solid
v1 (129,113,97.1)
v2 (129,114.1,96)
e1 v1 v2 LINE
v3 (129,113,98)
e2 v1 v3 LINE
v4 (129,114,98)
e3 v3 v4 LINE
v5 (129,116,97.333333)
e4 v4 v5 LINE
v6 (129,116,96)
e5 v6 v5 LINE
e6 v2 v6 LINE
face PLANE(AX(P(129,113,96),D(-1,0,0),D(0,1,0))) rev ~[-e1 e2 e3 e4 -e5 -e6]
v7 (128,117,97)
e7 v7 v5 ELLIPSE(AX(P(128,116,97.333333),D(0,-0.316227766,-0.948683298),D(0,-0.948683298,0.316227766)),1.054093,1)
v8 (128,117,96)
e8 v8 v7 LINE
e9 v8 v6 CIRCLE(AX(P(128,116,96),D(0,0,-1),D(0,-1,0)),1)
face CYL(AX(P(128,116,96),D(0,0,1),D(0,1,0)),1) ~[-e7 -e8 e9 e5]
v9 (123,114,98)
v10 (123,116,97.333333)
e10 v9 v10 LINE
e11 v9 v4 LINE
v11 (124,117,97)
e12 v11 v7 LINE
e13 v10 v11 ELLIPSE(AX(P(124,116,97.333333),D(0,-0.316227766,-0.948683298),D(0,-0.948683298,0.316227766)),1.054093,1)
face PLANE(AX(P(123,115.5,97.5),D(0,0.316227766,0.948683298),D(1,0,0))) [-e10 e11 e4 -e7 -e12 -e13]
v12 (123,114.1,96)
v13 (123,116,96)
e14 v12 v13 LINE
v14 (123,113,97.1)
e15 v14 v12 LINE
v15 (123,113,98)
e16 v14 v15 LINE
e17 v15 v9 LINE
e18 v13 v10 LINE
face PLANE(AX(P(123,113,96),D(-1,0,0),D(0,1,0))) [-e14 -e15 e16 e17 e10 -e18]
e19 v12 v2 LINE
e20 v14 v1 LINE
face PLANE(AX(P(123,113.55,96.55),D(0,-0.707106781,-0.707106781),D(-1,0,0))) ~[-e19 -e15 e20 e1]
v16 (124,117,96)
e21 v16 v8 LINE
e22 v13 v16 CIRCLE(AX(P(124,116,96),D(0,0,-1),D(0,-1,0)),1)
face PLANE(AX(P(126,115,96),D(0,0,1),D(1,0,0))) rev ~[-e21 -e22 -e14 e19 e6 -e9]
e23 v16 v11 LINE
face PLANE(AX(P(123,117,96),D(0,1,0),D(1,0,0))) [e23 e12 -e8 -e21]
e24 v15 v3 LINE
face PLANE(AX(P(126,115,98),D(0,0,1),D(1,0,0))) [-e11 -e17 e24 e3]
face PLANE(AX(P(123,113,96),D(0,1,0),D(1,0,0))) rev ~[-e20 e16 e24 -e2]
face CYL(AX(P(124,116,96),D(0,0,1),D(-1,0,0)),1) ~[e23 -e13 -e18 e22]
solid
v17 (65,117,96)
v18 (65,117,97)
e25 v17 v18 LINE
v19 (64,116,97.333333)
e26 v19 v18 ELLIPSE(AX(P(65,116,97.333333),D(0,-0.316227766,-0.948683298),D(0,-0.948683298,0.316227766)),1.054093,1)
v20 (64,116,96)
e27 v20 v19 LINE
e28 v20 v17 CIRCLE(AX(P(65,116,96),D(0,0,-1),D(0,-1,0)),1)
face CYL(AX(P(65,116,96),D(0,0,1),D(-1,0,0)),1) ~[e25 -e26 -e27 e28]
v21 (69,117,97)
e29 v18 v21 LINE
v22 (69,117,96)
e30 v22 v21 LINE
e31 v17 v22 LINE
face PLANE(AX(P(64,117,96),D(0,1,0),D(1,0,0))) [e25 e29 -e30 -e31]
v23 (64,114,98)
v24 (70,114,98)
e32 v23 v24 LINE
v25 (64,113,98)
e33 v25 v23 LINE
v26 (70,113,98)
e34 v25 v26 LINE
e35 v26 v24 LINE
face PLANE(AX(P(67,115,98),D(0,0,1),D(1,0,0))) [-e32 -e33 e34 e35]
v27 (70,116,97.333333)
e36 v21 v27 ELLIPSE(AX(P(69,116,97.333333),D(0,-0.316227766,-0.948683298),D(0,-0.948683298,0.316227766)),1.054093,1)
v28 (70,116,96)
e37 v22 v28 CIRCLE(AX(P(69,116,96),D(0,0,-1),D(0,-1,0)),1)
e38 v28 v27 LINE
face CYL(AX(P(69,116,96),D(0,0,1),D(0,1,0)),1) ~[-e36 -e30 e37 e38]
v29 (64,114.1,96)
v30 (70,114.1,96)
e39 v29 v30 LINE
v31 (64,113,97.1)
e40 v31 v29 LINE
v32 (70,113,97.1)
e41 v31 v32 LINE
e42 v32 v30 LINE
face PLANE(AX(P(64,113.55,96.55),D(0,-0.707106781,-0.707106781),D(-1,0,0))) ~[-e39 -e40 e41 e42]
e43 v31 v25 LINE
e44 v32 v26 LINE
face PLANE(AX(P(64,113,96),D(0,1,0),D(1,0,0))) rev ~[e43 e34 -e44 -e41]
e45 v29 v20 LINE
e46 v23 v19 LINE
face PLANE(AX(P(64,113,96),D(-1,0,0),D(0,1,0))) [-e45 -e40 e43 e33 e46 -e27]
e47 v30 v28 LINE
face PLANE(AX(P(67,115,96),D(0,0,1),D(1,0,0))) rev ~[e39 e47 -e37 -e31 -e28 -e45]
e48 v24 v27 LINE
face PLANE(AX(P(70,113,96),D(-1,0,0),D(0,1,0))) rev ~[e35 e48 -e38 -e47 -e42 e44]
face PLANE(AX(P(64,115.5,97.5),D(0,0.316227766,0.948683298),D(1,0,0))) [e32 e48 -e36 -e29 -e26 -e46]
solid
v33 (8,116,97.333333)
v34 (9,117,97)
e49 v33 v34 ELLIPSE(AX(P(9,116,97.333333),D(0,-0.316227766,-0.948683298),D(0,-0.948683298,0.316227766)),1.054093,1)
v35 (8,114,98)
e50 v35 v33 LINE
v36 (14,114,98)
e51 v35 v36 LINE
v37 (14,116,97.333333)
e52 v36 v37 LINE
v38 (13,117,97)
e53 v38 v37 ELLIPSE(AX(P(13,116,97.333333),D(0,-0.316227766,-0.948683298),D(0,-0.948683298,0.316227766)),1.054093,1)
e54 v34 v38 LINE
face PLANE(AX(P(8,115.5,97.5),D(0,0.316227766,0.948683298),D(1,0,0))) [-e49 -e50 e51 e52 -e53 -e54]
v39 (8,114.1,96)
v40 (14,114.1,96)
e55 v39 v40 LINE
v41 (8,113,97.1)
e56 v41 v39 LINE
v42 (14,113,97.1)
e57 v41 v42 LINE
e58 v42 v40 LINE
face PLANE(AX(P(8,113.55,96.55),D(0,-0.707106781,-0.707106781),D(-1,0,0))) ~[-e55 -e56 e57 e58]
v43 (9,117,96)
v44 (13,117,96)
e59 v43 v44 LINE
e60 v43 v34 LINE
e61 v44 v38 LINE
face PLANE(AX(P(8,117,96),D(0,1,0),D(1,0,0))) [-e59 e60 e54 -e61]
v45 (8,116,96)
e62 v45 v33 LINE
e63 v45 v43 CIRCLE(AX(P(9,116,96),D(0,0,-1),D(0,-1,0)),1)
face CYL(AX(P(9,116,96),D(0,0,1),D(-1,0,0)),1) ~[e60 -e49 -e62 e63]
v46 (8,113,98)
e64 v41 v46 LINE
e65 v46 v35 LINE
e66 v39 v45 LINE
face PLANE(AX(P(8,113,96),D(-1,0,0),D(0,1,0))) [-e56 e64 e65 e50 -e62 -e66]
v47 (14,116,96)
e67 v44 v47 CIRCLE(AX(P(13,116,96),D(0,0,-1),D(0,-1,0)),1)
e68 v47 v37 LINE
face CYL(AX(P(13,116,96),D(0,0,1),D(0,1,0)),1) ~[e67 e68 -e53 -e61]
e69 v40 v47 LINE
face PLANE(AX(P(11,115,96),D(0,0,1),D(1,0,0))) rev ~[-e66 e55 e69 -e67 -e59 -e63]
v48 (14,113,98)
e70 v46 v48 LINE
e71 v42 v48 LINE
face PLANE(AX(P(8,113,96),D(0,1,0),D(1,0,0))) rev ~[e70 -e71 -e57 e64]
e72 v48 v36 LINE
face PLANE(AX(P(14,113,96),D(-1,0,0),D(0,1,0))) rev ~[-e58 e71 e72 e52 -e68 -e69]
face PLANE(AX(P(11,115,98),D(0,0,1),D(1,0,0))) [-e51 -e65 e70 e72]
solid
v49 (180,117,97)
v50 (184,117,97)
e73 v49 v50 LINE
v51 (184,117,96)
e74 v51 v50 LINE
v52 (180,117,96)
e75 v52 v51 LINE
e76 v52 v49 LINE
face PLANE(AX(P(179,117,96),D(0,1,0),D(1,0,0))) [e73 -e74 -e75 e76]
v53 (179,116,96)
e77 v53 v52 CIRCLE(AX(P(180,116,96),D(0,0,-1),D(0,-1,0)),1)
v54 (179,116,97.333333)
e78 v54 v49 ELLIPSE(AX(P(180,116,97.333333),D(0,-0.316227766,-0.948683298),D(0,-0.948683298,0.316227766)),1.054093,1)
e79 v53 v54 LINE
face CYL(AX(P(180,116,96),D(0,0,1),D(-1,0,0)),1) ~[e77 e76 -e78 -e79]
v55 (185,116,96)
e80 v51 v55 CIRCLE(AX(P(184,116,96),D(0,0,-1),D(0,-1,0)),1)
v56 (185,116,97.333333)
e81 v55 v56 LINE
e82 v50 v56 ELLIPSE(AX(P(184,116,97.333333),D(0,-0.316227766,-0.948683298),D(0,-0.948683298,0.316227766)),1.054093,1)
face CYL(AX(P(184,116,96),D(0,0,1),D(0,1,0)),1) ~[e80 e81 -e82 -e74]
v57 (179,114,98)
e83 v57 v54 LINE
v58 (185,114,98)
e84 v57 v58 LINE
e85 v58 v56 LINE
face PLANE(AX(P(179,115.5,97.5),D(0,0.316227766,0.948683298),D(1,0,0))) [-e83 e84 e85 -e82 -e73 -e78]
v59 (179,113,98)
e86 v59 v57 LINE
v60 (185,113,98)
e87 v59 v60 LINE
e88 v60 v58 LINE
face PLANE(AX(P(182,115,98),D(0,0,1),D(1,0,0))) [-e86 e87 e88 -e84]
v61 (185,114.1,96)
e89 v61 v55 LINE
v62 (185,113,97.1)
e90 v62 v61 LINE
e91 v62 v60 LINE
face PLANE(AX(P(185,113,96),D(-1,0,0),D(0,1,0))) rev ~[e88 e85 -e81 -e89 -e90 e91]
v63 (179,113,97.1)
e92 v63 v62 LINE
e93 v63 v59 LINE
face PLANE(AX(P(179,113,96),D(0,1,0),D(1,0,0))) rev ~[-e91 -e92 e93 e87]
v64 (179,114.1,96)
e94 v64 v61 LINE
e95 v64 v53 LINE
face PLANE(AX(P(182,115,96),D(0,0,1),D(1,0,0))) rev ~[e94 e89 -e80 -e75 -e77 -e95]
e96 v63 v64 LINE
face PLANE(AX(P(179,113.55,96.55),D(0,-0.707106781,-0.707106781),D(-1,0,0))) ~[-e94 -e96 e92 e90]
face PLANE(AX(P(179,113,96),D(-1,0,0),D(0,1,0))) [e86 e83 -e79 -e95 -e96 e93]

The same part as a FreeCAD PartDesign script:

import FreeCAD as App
import Part
import Sketcher

V = App.Vector
Q = App.Units.Quantity


def edges_at(feature, points):
    """Names of the edges that pass closest to the given points."""
    edges = feature.Shape.Edges
    near = lambda p: min(range(len(edges)), key=lambda i: edges[i].distToShape(Part.Vertex(*p))[0])
    return sorted({f"Edge{near(p) + 1}" for p in points})


def add_polygon(sketch, points):
    """Adds a closed chain of lines whose ends are joined by coincident constraints."""
    first, n = sketch.GeometryCount, len(points)
    for a, b in zip(points, points[1:] + points[:1]):
        sketch.addGeometry(Part.LineSegment(App.Vector(*a, 0), App.Vector(*b, 0)), False)
    for i in range(n):
        sketch.addConstraint(Sketcher.Constraint("Coincident", first + i, 2, first + (i + 1) % n, 1))

doc = App.newDocument("Part")
body = doc.addObject("PartDesign::Body", "Body")

# Sketch on XY plane
sketch1 = doc.addObject("Sketcher::SketchObject", "Sketch")
body.addObject(sketch1)
sketch1.AttachmentSupport = (doc.XY_Plane, [""])
sketch1.MapMode = "FlatFace"
sketch1.AttachmentOffset = App.Placement(V(0, 0, 96), App.Rotation())
add_polygon(sketch1, [(123, 117), (123, 113), (129, 113), (129, 117)])  # lines 0-3
sketch1.addConstraint(Sketcher.Constraint("Vertical", 0))
sketch1.addConstraint(Sketcher.Constraint("Horizontal", 1))
sketch1.addConstraint(Sketcher.Constraint("Vertical", 2))
sketch1.addConstraint(Sketcher.Constraint("Horizontal", 3))
sketch1.addConstraint(Sketcher.Constraint("DistanceX", 1, 1, 1, 2, Q("6 mm")))
sketch1.addConstraint(Sketcher.Constraint("DistanceY", 0, 2, 0, 1, Q("4 mm")))
sketch1.addConstraint(Sketcher.Constraint("DistanceX", -1, 1, 0, 2, Q("123 mm")))
sketch1.addConstraint(Sketcher.Constraint("DistanceY", -1, 1, 0, 2, Q("113 mm")))
pad1 = doc.addObject("PartDesign::Pad", "Pad")
body.addObject(pad1)
pad1.Profile = sketch1
pad1.Length = 2
doc.recompute()

chamfer = doc.addObject("PartDesign::Chamfer", "Chamfer")
body.addObject(chamfer)
chamfer.Base = (pad1, edges_at(pad1, [(126, 113, 96)]))
chamfer.Size = 1.1
doc.recompute()

chamfer2 = doc.addObject("PartDesign::Chamfer", "Chamfer001")
body.addObject(chamfer2)
chamfer2.Base = (chamfer, edges_at(chamfer, [(126, 117, 98)]))
chamfer2.ChamferType = "Two distances"
chamfer2.Size = 3
chamfer2.Size2 = 1
body2 = doc.addObject("PartDesign::Body", "Body001")

# Sketch on XY plane
sketch2 = doc.addObject("Sketcher::SketchObject", "Sketch001")
body2.addObject(sketch2)
sketch2.AttachmentSupport = (doc.getObject("XY_Plane001"), [""])
sketch2.MapMode = "FlatFace"
sketch2.AttachmentOffset = App.Placement(V(0, 0, 96), App.Rotation())
add_polygon(sketch2, [(64, 117), (64, 113), (70, 113), (70, 117)])  # lines 0-3
sketch2.addConstraint(Sketcher.Constraint("Vertical", 0))
sketch2.addConstraint(Sketcher.Constraint("Horizontal", 1))
sketch2.addConstraint(Sketcher.Constraint("Vertical", 2))
sketch2.addConstraint(Sketcher.Constraint("Horizontal", 3))
sketch2.addConstraint(Sketcher.Constraint("DistanceX", 1, 1, 1, 2, Q("6 mm")))
sketch2.addConstraint(Sketcher.Constraint("DistanceY", 0, 2, 0, 1, Q("4 mm")))
sketch2.addConstraint(Sketcher.Constraint("DistanceX", -1, 1, 0, 2, Q("64 mm")))
sketch2.addConstraint(Sketcher.Constraint("DistanceY", -1, 1, 0, 2, Q("113 mm")))
pad2 = doc.addObject("PartDesign::Pad", "Pad001")
body2.addObject(pad2)
pad2.Profile = sketch2
pad2.Length = 2
doc.recompute()

chamfer3 = doc.addObject("PartDesign::Chamfer", "Chamfer002")
body2.addObject(chamfer3)
chamfer3.Base = (pad2, edges_at(pad2, [(67, 113, 96)]))
chamfer3.Size = 1.1
doc.recompute()

chamfer4 = doc.addObject("PartDesign::Chamfer", "Chamfer003")
body2.addObject(chamfer4)
chamfer4.Base = (chamfer3, edges_at(chamfer3, [(67, 117, 98)]))
chamfer4.ChamferType = "Two distances"
chamfer4.Size = 3
chamfer4.Size2 = 1
body3 = doc.addObject("PartDesign::Body", "Body002")

# Sketch on XY plane
sketch3 = doc.addObject("Sketcher::SketchObject", "Sketch002")
body3.addObject(sketch3)
sketch3.AttachmentSupport = (doc.getObject("XY_Plane002"), [""])
sketch3.MapMode = "FlatFace"
sketch3.AttachmentOffset = App.Placement(V(0, 0, 96), App.Rotation())
add_polygon(sketch3, [(8, 117), (8, 113), (14, 113), (14, 117)])  # lines 0-3
sketch3.addConstraint(Sketcher.Constraint("Vertical", 0))
sketch3.addConstraint(Sketcher.Constraint("Horizontal", 1))
sketch3.addConstraint(Sketcher.Constraint("Vertical", 2))
sketch3.addConstraint(Sketcher.Constraint("Horizontal", 3))
sketch3.addConstraint(Sketcher.Constraint("DistanceX", 1, 1, 1, 2, Q("6 mm")))
sketch3.addConstraint(Sketcher.Constraint("DistanceY", 0, 2, 0, 1, Q("4 mm")))
sketch3.addConstraint(Sketcher.Constraint("DistanceX", -1, 1, 0, 2, Q("8 mm")))
sketch3.addConstraint(Sketcher.Constraint("DistanceY", -1, 1, 0, 2, Q("113 mm")))
pad3 = doc.addObject("PartDesign::Pad", "Pad002")
body3.addObject(pad3)
pad3.Profile = sketch3
pad3.Length = 2
doc.recompute()

chamfer5 = doc.addObject("PartDesign::Chamfer", "Chamfer004")
body3.addObject(chamfer5)
chamfer5.Base = (pad3, edges_at(pad3, [(11, 113, 96)]))
chamfer5.Size = 1.1
doc.recompute()

chamfer6 = doc.addObject("PartDesign::Chamfer", "Chamfer005")
body3.addObject(chamfer6)
chamfer6.Base = (chamfer5, edges_at(chamfer5, [(11, 117, 98)]))
chamfer6.ChamferType = "Two distances"
chamfer6.Size = 3
chamfer6.Size2 = 1
body4 = doc.addObject("PartDesign::Body", "Body003")
body4.AllowCompound = True

# Sketch on XY plane
sketch4 = doc.addObject("Sketcher::SketchObject", "Sketch003")
body4.addObject(sketch4)
sketch4.AttachmentSupport = (doc.getObject("XY_Plane003"), [""])
sketch4.MapMode = "FlatFace"
sketch4.AttachmentOffset = App.Placement(V(0, 0, 96), App.Rotation())
add_polygon(sketch4, [(179, 117), (179, 113), (185, 113), (185, 117)])  # lines 0-3
sketch4.addConstraint(Sketcher.Constraint("Vertical", 0))
sketch4.addConstraint(Sketcher.Constraint("Horizontal", 1))
sketch4.addConstraint(Sketcher.Constraint("Vertical", 2))
sketch4.addConstraint(Sketcher.Constraint("Horizontal", 3))
sketch4.addConstraint(Sketcher.Constraint("DistanceX", 1, 1, 1, 2, Q("6 mm")))
sketch4.addConstraint(Sketcher.Constraint("DistanceY", 0, 2, 0, 1, Q("4 mm")))
sketch4.addConstraint(Sketcher.Constraint("DistanceX", -1, 1, 0, 2, Q("179 mm")))
sketch4.addConstraint(Sketcher.Constraint("DistanceY", -1, 1, 0, 2, Q("113 mm")))
pad4 = doc.addObject("PartDesign::Pad", "Pad003")
body4.addObject(pad4)
pad4.Profile = sketch4
pad4.Length = 2
doc.recompute()

chamfer7 = doc.addObject("PartDesign::Chamfer", "Chamfer006")
body4.addObject(chamfer7)
chamfer7.Base = (pad4, edges_at(pad4, [(182, 113, 96)]))
chamfer7.Size = 1.1
doc.recompute()

chamfer8 = doc.addObject("PartDesign::Chamfer", "Chamfer007")
body4.addObject(chamfer8)
chamfer8.Base = (chamfer7, edges_at(chamfer7, [(182, 117, 98)]))
chamfer8.ChamferType = "Two distances"
chamfer8.Size = 3
chamfer8.Size2 = 1
doc.recompute()

boolean = doc.addObject("PartDesign::Boolean", "Boolean")
body4.addObject(boolean)
boolean.Type = "Fuse"
boolean.addObjects([body])
doc.recompute()

boolean2 = doc.addObject("PartDesign::Boolean", "Boolean001")
body4.addObject(boolean2)
boolean2.Type = "Fuse"
boolean2.addObjects([body2])
doc.recompute()

boolean3 = doc.addObject("PartDesign::Boolean", "Boolean002")
body4.addObject(boolean3)
boolean3.Type = "Fuse"
boolean3.addObjects([body3])
doc.recompute()

fillet = doc.addObject("PartDesign::Fillet", "Fillet")
body4.addObject(fillet)
fillet.Base = (boolean3, edges_at(boolean3, [
    (179, 117, 96.5),
    (185, 117, 96.5),
    (123, 117, 96.5),
    (129, 117, 96.5),
    (64, 117, 96.5),
    (70, 117, 96.5),
    (8, 117, 96.5),
    (14, 117, 96.5),
]))
fillet.Radius = 1

doc.recompute()
